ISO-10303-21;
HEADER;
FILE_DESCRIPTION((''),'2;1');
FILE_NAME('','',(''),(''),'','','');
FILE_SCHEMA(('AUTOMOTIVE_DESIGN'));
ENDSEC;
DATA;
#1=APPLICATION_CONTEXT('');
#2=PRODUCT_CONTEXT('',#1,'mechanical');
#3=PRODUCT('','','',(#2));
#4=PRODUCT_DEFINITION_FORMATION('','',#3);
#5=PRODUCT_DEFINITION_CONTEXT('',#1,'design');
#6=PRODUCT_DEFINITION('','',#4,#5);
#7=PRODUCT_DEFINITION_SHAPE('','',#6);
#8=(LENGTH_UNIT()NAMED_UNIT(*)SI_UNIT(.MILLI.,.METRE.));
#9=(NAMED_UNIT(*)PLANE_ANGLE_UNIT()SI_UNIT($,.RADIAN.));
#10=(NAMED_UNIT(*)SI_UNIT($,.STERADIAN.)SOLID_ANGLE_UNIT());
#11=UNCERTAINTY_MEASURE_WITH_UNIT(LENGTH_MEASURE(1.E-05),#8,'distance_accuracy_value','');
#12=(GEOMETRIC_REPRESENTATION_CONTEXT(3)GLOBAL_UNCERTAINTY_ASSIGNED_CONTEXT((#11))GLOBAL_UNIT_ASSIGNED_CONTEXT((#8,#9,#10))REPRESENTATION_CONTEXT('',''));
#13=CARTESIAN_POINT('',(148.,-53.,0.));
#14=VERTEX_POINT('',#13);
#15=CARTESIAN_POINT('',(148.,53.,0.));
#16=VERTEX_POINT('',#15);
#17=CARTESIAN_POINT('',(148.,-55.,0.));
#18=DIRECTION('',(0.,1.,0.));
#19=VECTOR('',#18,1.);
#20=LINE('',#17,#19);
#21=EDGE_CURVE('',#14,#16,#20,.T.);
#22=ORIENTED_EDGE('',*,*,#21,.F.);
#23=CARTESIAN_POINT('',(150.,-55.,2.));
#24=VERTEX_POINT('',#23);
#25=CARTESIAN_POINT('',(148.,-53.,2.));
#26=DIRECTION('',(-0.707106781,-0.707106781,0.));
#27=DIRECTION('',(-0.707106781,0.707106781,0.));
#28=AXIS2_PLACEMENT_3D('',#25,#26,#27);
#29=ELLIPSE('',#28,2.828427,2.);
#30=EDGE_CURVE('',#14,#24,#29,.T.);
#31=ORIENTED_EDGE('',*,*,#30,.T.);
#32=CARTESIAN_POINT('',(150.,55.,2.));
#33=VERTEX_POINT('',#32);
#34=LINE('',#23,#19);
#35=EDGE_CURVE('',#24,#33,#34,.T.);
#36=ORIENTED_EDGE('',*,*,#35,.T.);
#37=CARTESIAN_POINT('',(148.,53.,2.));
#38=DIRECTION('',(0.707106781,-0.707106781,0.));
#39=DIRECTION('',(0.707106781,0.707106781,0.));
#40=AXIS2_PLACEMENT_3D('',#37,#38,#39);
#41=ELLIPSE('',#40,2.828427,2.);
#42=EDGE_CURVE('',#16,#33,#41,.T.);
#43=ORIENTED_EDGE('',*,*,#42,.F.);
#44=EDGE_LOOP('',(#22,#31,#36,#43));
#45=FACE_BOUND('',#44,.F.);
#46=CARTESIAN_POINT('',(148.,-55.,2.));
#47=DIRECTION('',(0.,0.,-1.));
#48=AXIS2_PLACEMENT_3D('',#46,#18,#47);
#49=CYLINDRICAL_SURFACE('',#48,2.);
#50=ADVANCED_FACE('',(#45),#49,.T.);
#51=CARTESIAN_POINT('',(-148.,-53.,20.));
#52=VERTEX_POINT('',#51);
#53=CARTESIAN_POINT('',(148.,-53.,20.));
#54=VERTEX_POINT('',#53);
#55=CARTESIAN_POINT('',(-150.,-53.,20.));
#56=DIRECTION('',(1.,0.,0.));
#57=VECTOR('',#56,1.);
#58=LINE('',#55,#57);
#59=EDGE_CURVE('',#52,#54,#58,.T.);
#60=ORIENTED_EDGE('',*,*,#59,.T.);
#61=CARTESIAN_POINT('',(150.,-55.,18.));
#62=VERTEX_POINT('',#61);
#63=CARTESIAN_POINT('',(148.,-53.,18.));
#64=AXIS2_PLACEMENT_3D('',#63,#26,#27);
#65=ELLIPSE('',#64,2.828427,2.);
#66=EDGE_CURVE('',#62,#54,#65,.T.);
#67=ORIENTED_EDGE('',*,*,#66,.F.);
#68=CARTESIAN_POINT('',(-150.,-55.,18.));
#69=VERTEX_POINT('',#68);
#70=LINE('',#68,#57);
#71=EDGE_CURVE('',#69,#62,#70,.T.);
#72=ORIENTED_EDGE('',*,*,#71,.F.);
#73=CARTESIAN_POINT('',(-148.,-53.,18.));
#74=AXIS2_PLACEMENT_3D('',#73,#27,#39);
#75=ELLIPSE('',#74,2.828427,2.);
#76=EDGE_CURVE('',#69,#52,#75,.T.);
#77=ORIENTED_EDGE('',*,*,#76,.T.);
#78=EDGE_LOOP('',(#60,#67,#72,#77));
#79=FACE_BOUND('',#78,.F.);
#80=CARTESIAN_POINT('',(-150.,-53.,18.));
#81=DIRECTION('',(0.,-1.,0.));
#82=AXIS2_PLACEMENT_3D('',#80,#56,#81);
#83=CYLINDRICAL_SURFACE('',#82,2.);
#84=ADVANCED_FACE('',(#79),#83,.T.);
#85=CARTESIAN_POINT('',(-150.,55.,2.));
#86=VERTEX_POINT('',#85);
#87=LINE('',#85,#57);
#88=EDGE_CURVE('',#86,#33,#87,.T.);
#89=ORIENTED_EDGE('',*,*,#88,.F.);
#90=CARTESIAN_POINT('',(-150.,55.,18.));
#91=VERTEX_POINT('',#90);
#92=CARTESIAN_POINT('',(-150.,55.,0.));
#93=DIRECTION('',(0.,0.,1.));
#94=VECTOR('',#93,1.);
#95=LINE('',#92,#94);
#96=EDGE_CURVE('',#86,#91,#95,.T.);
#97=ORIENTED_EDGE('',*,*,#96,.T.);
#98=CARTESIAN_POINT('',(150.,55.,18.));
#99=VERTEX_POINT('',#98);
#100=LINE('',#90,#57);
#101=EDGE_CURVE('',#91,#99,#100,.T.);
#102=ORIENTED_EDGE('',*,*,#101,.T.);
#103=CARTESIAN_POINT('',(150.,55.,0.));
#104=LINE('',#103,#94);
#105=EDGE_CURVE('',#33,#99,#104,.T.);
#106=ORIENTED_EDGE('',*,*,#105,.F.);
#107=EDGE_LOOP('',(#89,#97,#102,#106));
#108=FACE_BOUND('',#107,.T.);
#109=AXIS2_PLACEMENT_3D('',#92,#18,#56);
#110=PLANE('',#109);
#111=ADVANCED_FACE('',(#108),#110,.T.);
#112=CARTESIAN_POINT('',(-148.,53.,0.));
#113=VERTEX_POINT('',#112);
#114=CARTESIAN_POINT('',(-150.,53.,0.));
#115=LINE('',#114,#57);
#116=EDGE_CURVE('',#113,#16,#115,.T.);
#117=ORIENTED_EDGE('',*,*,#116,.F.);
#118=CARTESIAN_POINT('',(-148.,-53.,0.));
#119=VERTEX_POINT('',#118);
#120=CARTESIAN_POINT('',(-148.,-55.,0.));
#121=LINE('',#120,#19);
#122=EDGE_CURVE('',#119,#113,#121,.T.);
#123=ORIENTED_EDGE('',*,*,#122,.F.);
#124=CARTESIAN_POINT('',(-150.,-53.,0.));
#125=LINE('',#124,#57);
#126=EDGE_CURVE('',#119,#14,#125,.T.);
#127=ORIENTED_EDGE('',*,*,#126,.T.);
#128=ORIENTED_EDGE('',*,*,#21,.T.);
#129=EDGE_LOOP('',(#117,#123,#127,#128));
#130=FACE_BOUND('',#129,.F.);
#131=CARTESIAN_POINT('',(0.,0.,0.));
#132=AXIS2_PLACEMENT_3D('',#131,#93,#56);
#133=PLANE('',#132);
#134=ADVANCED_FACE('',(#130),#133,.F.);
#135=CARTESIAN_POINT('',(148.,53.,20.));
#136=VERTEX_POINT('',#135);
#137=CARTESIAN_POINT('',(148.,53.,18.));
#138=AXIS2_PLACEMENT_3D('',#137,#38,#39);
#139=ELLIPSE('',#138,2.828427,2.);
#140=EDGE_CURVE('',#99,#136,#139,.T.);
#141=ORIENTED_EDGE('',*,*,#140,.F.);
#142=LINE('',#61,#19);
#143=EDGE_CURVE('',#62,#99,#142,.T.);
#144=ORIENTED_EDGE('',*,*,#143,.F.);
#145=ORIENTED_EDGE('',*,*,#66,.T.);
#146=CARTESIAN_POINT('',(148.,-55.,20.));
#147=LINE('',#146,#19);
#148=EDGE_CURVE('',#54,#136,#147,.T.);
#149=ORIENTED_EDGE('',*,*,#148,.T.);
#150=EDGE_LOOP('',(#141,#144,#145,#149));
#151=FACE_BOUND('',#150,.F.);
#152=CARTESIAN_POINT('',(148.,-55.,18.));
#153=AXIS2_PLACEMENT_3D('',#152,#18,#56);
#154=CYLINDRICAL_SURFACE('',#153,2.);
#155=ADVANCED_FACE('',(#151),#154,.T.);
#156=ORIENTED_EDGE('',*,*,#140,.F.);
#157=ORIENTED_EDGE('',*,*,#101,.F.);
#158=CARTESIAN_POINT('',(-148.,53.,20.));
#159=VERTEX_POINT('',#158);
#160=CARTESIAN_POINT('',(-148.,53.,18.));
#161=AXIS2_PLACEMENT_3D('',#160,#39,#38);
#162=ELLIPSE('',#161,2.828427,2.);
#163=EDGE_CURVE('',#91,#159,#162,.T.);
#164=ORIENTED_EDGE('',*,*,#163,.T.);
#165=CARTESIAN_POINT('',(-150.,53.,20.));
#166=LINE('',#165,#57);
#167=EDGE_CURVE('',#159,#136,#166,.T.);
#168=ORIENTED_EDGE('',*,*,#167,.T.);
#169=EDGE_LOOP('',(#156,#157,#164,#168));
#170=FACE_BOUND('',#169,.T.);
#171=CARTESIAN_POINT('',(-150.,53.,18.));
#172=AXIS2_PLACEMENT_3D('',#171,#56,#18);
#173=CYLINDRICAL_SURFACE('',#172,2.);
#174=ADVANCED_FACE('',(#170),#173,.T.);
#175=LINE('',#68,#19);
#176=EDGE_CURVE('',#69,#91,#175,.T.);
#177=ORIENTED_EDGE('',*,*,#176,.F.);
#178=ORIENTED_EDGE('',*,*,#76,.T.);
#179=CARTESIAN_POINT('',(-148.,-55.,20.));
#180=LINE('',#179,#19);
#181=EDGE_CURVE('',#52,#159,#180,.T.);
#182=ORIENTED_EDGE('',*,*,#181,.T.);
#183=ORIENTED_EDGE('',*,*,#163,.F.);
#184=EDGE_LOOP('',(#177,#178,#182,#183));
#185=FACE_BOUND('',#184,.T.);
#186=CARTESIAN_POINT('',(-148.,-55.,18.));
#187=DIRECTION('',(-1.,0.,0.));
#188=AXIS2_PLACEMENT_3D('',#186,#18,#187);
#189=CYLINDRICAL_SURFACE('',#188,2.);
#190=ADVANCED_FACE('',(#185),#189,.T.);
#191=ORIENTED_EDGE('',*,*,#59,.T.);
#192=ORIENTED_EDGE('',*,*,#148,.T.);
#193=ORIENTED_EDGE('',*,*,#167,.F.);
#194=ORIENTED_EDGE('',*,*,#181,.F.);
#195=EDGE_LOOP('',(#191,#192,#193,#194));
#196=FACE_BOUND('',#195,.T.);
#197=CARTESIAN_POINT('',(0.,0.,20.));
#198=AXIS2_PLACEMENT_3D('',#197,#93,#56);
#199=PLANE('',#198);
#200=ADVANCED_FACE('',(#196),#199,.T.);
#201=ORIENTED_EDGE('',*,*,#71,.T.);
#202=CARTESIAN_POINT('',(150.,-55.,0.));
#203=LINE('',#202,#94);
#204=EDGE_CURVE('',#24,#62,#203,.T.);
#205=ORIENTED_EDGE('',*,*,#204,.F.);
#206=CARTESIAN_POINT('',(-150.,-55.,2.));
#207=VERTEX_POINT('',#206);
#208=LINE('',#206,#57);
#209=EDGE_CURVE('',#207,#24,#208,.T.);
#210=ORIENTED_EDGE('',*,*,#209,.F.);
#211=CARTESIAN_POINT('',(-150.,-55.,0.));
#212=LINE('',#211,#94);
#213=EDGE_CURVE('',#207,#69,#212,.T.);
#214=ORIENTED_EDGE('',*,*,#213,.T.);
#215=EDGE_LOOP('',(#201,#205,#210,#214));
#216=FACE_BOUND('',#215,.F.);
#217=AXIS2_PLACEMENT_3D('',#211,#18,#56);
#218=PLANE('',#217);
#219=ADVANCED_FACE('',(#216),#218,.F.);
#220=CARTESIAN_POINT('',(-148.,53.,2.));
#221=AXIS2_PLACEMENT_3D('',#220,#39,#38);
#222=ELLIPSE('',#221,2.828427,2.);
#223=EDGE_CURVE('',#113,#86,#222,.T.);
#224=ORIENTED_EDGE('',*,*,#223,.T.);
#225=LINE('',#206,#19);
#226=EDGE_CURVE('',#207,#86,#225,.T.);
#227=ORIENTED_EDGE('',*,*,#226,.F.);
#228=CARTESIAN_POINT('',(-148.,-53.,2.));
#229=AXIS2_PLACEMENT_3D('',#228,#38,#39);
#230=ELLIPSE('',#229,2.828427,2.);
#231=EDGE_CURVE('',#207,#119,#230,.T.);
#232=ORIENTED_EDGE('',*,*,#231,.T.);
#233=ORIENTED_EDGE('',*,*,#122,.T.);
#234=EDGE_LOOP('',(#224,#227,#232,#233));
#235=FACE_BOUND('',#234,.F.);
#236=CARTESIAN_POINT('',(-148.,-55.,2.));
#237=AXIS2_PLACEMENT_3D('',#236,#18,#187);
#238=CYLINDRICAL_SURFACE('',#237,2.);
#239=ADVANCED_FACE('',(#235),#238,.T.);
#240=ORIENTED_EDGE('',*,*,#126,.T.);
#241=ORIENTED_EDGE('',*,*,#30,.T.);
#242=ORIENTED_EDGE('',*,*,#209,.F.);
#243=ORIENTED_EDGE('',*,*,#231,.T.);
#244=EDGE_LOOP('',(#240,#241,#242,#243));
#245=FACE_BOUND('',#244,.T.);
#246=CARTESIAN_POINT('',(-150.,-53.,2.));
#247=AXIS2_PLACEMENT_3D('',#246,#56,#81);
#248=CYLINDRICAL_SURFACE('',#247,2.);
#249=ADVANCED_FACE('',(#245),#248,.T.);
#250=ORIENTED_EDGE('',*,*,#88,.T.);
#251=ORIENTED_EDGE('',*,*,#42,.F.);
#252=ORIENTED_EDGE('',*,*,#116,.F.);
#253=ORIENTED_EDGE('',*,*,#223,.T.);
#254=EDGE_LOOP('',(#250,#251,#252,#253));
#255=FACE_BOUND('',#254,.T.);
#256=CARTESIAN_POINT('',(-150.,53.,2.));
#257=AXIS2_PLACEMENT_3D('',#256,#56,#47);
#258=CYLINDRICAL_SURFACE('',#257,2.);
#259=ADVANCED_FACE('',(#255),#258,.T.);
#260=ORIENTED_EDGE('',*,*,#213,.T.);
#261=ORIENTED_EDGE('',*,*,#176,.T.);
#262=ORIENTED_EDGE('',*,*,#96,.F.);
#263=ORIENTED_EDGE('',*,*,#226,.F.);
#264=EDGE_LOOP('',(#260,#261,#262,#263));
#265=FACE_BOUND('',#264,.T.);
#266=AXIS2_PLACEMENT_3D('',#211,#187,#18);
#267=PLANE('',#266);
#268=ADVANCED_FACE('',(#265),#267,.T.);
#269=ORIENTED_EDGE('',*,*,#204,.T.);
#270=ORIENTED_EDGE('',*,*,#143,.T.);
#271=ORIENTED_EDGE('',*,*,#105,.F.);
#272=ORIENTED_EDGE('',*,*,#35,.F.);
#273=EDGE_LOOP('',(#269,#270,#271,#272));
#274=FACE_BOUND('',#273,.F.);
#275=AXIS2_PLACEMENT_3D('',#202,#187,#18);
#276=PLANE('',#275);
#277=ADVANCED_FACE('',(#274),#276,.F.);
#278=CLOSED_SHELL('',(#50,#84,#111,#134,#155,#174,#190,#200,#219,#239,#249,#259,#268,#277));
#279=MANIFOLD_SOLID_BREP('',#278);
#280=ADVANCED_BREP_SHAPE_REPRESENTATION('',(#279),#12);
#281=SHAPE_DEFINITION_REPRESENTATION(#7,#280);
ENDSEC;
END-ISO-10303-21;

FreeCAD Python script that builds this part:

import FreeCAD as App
import Part
import Sketcher

V = App.Vector


def edges_at(feature, points):
    """Names of the edges that pass closest to the given points."""
    edges = feature.Shape.Edges
    near = lambda p: min(range(len(edges)), key=lambda i: edges[i].distToShape(Part.Vertex(*p))[0])
    return sorted({f"Edge{near(p) + 1}" for p in points})

doc = App.newDocument("Part")
body = doc.addObject("PartDesign::Body", "Body")

sketch1 = body.newObject("Sketcher::SketchObject", "Sketch")
sketch1.AttachmentSupport = (doc.getObject("XY_Plane"), [""])
sketch1.MapMode = "FlatFace"
sketch1.addGeometry(Part.LineSegment(V(-150, 55, 0), V(-150, -55, 0)), False)
sketch1.addGeometry(Part.LineSegment(V(-150, -55, 0), V(150, -55, 0)), False)
sketch1.addGeometry(Part.LineSegment(V(150, -55, 0), V(150, 55, 0)), False)
sketch1.addGeometry(Part.LineSegment(V(150, 55, 0), V(-150, 55, 0)), False)
sketch1.addConstraint(Sketcher.Constraint("Coincident", 0, 2, 1, 1))
sketch1.addConstraint(Sketcher.Constraint("Coincident", 1, 2, 2, 1))
sketch1.addConstraint(Sketcher.Constraint("Coincident", 2, 2, 3, 1))
sketch1.addConstraint(Sketcher.Constraint("Coincident", 3, 2, 0, 1))
sketch1.addConstraint(Sketcher.Constraint("Vertical", 0))
sketch1.addConstraint(Sketcher.Constraint("Horizontal", 1))
sketch1.addConstraint(Sketcher.Constraint("Vertical", 2))
sketch1.addConstraint(Sketcher.Constraint("Horizontal", 3))
sketch1.addConstraint(Sketcher.Constraint("Symmetric", 0, 2, 2, 2, -1, 1))
sketch1.addConstraint(Sketcher.Constraint("DistanceX", 1, 1, 1, 2, 300.0))
sketch1.addConstraint(Sketcher.Constraint("DistanceY", 0, 2, 0, 1, 110.0))
pad1 = body.newObject("PartDesign::Pad", "Pad")
pad1.Profile = sketch1
pad1.Length = 20
doc.recompute()

fillet = body.newObject("PartDesign::Fillet", "Fillet")
fillet.Base = (pad1, edges_at(pad1, [
    (0, 55, 20),
    (150, 0, 20),
    (0, -55, 20),
    (-150, 0, 20),
]))
fillet.Radius = 2
doc.recompute()

fillet2 = body.newObject("PartDesign::Fillet", "Fillet001")
fillet2.Base = (fillet, edges_at(fillet, [
    (0, 55, 0),
    (150, 0, 0),
    (0, -55, 0),
    (-150, 0, 0),
]))
fillet2.Radius = 2

doc.recompute()
